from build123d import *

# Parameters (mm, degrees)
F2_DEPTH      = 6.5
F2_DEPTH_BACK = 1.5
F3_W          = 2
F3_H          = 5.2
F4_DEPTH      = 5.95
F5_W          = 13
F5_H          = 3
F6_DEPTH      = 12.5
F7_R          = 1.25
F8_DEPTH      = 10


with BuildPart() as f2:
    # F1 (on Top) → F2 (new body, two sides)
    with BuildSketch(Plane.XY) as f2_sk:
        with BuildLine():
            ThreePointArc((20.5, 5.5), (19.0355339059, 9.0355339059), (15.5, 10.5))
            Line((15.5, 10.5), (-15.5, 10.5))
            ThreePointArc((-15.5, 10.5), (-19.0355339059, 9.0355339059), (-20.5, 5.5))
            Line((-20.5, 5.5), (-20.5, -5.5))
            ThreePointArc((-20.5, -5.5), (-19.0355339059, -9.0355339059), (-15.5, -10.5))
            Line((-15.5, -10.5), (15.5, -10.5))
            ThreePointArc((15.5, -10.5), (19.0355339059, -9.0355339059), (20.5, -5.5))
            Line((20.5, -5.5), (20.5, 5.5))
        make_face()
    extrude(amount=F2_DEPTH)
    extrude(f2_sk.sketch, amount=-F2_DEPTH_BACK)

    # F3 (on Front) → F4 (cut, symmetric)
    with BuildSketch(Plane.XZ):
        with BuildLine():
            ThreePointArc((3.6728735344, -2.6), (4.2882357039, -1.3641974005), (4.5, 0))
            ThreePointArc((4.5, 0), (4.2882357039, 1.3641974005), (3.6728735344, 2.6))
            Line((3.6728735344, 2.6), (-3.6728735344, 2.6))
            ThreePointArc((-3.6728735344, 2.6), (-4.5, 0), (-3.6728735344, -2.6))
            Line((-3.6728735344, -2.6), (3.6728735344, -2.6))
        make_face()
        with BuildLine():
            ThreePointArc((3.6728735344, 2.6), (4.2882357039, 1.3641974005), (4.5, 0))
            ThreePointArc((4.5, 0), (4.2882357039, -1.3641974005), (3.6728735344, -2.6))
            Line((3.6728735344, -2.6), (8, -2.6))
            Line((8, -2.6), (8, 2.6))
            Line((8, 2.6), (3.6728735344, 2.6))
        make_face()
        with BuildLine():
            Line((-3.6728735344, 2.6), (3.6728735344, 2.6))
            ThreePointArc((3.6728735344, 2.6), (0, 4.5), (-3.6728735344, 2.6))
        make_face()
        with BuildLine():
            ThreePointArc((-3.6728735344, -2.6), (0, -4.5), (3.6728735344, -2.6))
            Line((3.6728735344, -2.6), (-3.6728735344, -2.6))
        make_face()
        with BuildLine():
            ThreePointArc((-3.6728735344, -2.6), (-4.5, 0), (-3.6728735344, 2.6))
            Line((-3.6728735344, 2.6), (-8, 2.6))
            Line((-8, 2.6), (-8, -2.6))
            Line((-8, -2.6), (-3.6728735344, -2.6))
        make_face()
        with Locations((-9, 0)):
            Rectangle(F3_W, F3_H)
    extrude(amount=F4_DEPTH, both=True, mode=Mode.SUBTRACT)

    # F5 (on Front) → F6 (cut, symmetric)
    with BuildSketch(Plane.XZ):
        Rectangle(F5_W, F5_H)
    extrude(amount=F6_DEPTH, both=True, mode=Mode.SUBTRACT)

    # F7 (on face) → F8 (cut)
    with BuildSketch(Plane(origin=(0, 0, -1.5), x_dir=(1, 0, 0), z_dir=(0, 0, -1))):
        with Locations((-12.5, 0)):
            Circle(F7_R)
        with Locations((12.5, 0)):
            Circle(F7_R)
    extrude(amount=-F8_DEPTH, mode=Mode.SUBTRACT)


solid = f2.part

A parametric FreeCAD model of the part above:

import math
import FreeCAD as App
import Part
import Sketcher

V = App.Vector

doc = App.newDocument("Part")
body = doc.addObject("PartDesign::Body", "Body")

sketch1 = body.newObject("Sketcher::SketchObject", "Sketch")
sketch1.AttachmentSupport = (doc.getObject("XY_Plane"), [""])
sketch1.MapMode = "FlatFace"
sketch1.addGeometry([
    Part.ArcOfCircle(Part.Circle(V(16, 6, 0), V(0, 0, 1), 5), math.radians(0), math.radians(90)),
    Part.LineSegment(V(16, 10, 0), V(-16, 10, 0)),
    Part.ArcOfCircle(Part.Circle(V(-16, 6, 0), V(0, 0, 1), 5), math.radians(90), math.radians(180)),
    Part.LineSegment(V(-20, 6, 0), V(-20, -6, 0)),
    Part.ArcOfCircle(Part.Circle(V(-16, -6, 0), V(0, 0, 1), 5), math.radians(180), math.radians(270)),
    Part.LineSegment(V(-16, -10, 0), V(16, -10, 0)),
    Part.ArcOfCircle(Part.Circle(V(16, -6, 0), V(0, 0, 1), 5), math.radians(-90), math.radians(0)),
    Part.LineSegment(V(20, -6, 0), V(20, 6, 0)),
], False)
sketch1.addConstraint([
    Sketcher.Constraint("Tangent", 0, 2, 1, 1),
    Sketcher.Constraint("Tangent", 1, 2, 2, 1),
    Sketcher.Constraint("Tangent", 2, 2, 3, 1),
    Sketcher.Constraint("Tangent", 3, 2, 4, 1),
    Sketcher.Constraint("Tangent", 4, 2, 5, 1),
    Sketcher.Constraint("Tangent", 5, 2, 6, 1),
    Sketcher.Constraint("Tangent", 6, 2, 7, 1),
    Sketcher.Constraint("Tangent", 7, 2, 0, 1),
    Sketcher.Constraint("Horizontal", 1),
    Sketcher.Constraint("Vertical", 3),
    Sketcher.Constraint("Horizontal", 5),
    Sketcher.Constraint("Vertical", 7),
    Sketcher.Constraint("Equal", 0, 2),
    Sketcher.Constraint("Equal", 2, 4),
    Sketcher.Constraint("Equal", 4, 6),
    Sketcher.Constraint("Symmetric", 0, 3, 4, 3, -1, 1),
    Sketcher.Constraint("Radius", 0, 5.0),
    Sketcher.Constraint("DistanceX", 1, 2, 1, 1, 31.0),
    Sketcher.Constraint("DistanceY", 3, 2, 3, 1, 11.0),
])
pad1 = body.newObject("PartDesign::Pad", "Pad")
pad1.Profile = sketch1
pad1.Type = "TwoLengths"
pad1.Length = 6.5
pad1.Length2 = 1.5

sketch2 = body.newObject("Sketcher::SketchObject", "Sketch001")
sketch2.AttachmentSupport = (doc.getObject("XZ_Plane"), [""])
sketch2.MapMode = "FlatFace"
sketch2.addGeometry([
    Part.ArcOfCircle(Part.Circle(V(0, 0, 0), V(0, 0, 1), 4.5), math.radians(-145), math.radians(-35)),
    Part.LineSegment(V(3.7, -2.6, 0), V(8, -2.6, 0)),
    Part.LineSegment(V(8, -2.6, 0), V(8, 2.6, 0)),
    Part.LineSegment(V(8, 2.6, 0), V(3.7, 2.6, 0)),
    Part.ArcOfCircle(Part.Circle(V(0, 0, 0), V(0, 0, 1), 4.5), math.radians(35), math.radians(145)),
    Part.LineSegment(V(-3.7, 2.6, 0), V(-10, 2.6, 0)),
    Part.LineSegment(V(-10, 2.6, 0), V(-10, -2.6, 0)),
    Part.LineSegment(V(-10, -2.6, 0), V(-3.7, -2.6, 0)),
], False)
sketch2.addConstraint([
    Sketcher.Constraint("Coincident", 0, 2, 1, 1),
    Sketcher.Constraint("Coincident", 1, 2, 2, 1),
    Sketcher.Constraint("Coincident", 2, 2, 3, 1),
    Sketcher.Constraint("Coincident", 3, 2, 4, 1),
    Sketcher.Constraint("Coincident", 4, 2, 5, 1),
    Sketcher.Constraint("Coincident", 5, 2, 6, 1),
    Sketcher.Constraint("Coincident", 6, 2, 7, 1),
    Sketcher.Constraint("Coincident", 7, 2, 0, 1),
    Sketcher.Constraint("Horizontal", 1),
    Sketcher.Constraint("Vertical", 2),
    Sketcher.Constraint("Horizontal", 3),
    Sketcher.Constraint("Horizontal", 5),
    Sketcher.Constraint("Vertical", 6),
    Sketcher.Constraint("Horizontal", 7),
    Sketcher.Constraint("Coincident", 0, 3, -1, 1),
    Sketcher.Constraint("Coincident", 4, 3, -1, 1),
    Sketcher.Constraint("Equal", 0, 4),
    Sketcher.Constraint("Horizontal", 3, 2, 4, 2),
    Sketcher.Constraint("Horizontal", 1, 2, 6, 2),
    Sketcher.Constraint("Vertical", 0, 2, 3, 2),
    Sketcher.Constraint("Radius", 0, 4.5),
    Sketcher.Constraint("DistanceY", 2, 1, 2, 2, 5.2),
    Sketcher.Constraint("DistanceX", -1, 1, 1, 2, 8.0),
    Sketcher.Constraint("DistanceX", 5, 2, -1, 1, 10.0),
])
pocket1 = body.newObject("PartDesign::Pocket", "Pocket")
pocket1.Profile = sketch2
pocket1.Length = 11.9
pocket1.Midplane = True

sketch3 = body.newObject("Sketcher::SketchObject", "Sketch002")
sketch3.AttachmentSupport = (doc.getObject("XZ_Plane"), [""])
sketch3.MapMode = "FlatFace"
sketch3.addGeometry([
    Part.LineSegment(V(-6.5, 1.5, 0), V(-6.5, -1.5, 0)),
    Part.LineSegment(V(-6.5, -1.5, 0), V(6.5, -1.5, 0)),
    Part.LineSegment(V(6.5, -1.5, 0), V(6.5, 1.5, 0)),
    Part.LineSegment(V(6.5, 1.5, 0), V(-6.5, 1.5, 0)),
], False)
sketch3.addConstraint([
    Sketcher.Constraint("Coincident", 0, 2, 1, 1),
    Sketcher.Constraint("Coincident", 1, 2, 2, 1),
    Sketcher.Constraint("Coincident", 2, 2, 3, 1),
    Sketcher.Constraint("Coincident", 3, 2, 0, 1),
    Sketcher.Constraint("Vertical", 0),
    Sketcher.Constraint("Horizontal", 1),
    Sketcher.Constraint("Vertical", 2),
    Sketcher.Constraint("Horizontal", 3),
    Sketcher.Constraint("Symmetric", 0, 2, 2, 2, -1, 1),
    Sketcher.Constraint("DistanceX", 1, 1, 1, 2, 13.0),
    Sketcher.Constraint("DistanceY", 0, 2, 0, 1, 3.0),
])
pocket2 = body.newObject("PartDesign::Pocket", "Pocket001")
pocket2.Profile = sketch3
pocket2.Length = 25
pocket2.Midplane = True

sketch4 = body.newObject("Sketcher::SketchObject", "Sketch003")
sketch4.AttachmentSupport = (doc.getObject("XY_Plane"), [""])
sketch4.MapMode = "FlatFace"
sketch4.AttachmentOffset = App.Placement(V(0, 0, -1.5), App.Rotation())
sketch4.addGeometry([
    Part.Circle(V(-12.5, 0, 0), V(0, 0, 1), 1.2),
    Part.Circle(V(12.5, 0, 0), V(0, 0, 1), 1.2),
], False)
sketch4.addConstraint([
    Sketcher.Constraint("Equal", 0, 1),
    Sketcher.Constraint("Symmetric", 0, 3, 1, 3, -1, 1),
    Sketcher.Constraint("PointOnObject", 0, 3, -1),
    Sketcher.Constraint("Diameter", 0, 2.5),
    Sketcher.Constraint("DistanceX", 0, 3, 1, 3, 25.0),
])
pocket3 = body.newObject("PartDesign::Pocket", "Pocket002")
pocket3.Profile = sketch4
pocket3.Length = 10
pocket3.Reversed = True

doc.recompute()
